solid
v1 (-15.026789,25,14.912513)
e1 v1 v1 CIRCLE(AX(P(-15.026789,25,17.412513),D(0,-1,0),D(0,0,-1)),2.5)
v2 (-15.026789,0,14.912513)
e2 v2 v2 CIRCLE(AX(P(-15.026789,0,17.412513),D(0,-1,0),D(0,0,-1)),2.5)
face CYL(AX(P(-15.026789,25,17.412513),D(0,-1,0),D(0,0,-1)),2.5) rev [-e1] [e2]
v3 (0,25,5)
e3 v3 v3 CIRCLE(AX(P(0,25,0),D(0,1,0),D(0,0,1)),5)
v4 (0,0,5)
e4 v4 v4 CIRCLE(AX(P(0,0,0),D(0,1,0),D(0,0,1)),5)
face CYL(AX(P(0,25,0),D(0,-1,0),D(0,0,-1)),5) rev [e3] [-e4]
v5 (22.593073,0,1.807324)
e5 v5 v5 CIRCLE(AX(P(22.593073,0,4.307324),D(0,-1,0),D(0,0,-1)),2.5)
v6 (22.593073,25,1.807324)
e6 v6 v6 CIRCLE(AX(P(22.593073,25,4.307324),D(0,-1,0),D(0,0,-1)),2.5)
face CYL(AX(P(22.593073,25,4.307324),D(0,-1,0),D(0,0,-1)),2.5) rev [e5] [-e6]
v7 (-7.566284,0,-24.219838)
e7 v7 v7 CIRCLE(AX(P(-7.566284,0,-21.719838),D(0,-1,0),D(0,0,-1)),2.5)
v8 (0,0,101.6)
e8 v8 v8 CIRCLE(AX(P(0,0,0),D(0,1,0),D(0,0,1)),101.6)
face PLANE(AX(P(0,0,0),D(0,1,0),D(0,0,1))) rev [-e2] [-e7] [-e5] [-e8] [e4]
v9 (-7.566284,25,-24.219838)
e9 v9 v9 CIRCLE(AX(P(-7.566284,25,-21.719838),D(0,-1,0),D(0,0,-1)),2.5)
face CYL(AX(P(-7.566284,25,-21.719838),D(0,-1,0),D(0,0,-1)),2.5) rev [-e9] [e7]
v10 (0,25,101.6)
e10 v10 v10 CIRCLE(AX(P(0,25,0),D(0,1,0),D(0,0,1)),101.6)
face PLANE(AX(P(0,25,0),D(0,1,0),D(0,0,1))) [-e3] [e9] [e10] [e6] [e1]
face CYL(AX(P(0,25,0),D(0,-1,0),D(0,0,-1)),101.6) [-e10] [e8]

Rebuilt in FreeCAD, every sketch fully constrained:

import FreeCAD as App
import Part
import Sketcher
from FreeCAD import Vector
Q = App.Units.Quantity

doc = App.newDocument("Part")
body = doc.addObject("PartDesign::Body", "Body")

# Sketch on XZ plane
sketch1 = body.newObject("Sketcher::SketchObject", "Sketch")
sketch1.AttachmentSupport = (doc.getObject("XZ_Plane"), [""])
sketch1.MapMode = "FlatFace"
sketch1.addGeometry([
    Part.Circle(Vector(0, 0, 0), Vector(0, 0, 1), 102),
    Part.Circle(Vector(0, 0, 0), Vector(0, 0, 1), 5),
], False)
sketch1.addConstraint([
    Sketcher.Constraint("Coincident", 0, 3, -1, 1),
    Sketcher.Constraint("Coincident", 1, 3, -1, 1),
    Sketcher.Constraint("Diameter", 1, Q("10 mm")),
    Sketcher.Constraint("Diameter", 0, Q("203.2 mm")),
])
pad1 = body.newObject("PartDesign::Pad", "Pad")
pad1.Profile = sketch1
pad1.Length = 25
pad1.Reversed = True

# Sketch on XZ plane
sketch2 = body.newObject("Sketcher::SketchObject", "Sketch001")
sketch2.AttachmentSupport = (doc.getObject("XZ_Plane"), [""])
sketch2.MapMode = "FlatFace"
sketch2.addGeometry([
    Part.Circle(Vector(22.6, 4.3, 0), Vector(0, 0, 1), 2.5),
    Part.Circle(Vector(-7.6, -21.7, 0), Vector(0, 0, 1), 2.5),
    Part.Circle(Vector(-15, 17.4, 0), Vector(0, 0, 1), 2.5),
], False)
sketch2.addConstraint([
    Sketcher.Constraint("Equal", 0, 1),
    Sketcher.Constraint("Equal", 1, 2),
    Sketcher.Constraint("Diameter", 0, Q("5 mm")),
    Sketcher.Constraint("DistanceX", 2, 3, -1, 1, Q("15.026789 mm")),
    Sketcher.Constraint("DistanceY", 1, 3, 0, 3, Q("26.027162 mm")),
    Sketcher.Constraint("DistanceY", 0, 3, 2, 3, Q("13.105189 mm")),
    Sketcher.Constraint("DistanceX", -1, 1, 0, 3, Q("22.593073 mm")),
    Sketcher.Constraint("DistanceY", -1, 1, 0, 3, Q("4.307324 mm")),
    Sketcher.Constraint("DistanceX", 1, 3, -1, 1, Q("7.566284 mm")),
])
pocket1 = body.newObject("PartDesign::Pocket", "Pocket")
pocket1.Profile = sketch2
pocket1.Type = "ThroughAll"

doc.recompute()
